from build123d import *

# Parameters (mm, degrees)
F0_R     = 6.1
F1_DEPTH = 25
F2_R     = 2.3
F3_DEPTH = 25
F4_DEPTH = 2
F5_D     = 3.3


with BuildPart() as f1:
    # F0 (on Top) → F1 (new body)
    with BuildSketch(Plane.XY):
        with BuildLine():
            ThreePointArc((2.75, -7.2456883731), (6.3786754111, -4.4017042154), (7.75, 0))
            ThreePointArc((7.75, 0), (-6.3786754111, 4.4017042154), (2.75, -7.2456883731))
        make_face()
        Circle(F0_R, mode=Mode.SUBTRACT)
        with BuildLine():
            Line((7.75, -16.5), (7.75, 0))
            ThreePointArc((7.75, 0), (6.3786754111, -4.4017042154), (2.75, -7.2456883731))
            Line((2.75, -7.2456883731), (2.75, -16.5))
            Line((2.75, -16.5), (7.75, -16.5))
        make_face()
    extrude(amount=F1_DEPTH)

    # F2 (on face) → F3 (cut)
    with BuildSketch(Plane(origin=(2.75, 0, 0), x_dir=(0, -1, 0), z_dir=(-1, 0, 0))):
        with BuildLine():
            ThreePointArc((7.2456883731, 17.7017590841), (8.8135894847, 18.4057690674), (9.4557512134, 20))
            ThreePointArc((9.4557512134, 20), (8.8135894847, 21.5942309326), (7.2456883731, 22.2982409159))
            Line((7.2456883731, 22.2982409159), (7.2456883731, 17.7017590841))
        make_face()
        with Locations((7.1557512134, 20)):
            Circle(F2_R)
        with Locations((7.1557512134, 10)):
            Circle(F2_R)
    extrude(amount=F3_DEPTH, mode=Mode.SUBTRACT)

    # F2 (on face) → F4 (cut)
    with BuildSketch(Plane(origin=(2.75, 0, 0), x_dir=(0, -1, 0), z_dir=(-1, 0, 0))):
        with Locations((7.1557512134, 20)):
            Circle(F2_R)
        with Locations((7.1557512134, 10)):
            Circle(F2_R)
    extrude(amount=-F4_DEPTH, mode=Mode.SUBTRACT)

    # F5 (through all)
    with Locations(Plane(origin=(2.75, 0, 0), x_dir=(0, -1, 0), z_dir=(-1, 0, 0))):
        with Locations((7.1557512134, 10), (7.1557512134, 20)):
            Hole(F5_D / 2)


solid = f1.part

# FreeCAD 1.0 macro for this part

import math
import FreeCAD as App
import Part
import Sketcher

doc = App.newDocument("Part")
body = doc.addObject("PartDesign::Body", "Body")

# Sketch on XY plane
sketch1 = doc.addObject("Sketcher::SketchObject", "Sketch")
body.addObject(sketch1)
sketch1.AttachmentSupport = (doc.XY_Plane, [""])
sketch1.MapMode = "FlatFace"
sketch1.addGeometry(Part.ArcOfCircle(Part.Circle(App.Vector(0, 0, 0), App.Vector(0, 0, 1), 8), math.radians(0), math.radians(291)), False)
sketch1.addGeometry(Part.LineSegment(App.Vector(3, -7, 0), App.Vector(3, -16, 0)), False)
sketch1.addGeometry(Part.LineSegment(App.Vector(3, -16, 0), App.Vector(8, -16, 0)), False)
sketch1.addGeometry(Part.LineSegment(App.Vector(8, -16, 0), App.Vector(8, 0, 0)), False)
sketch1.addGeometry(Part.Circle(App.Vector(0, 0, 0), App.Vector(0, 0, 1), 6), False)
sketch1.addConstraint(Sketcher.Constraint("Coincident", 0, 2, 1, 1))
sketch1.addConstraint(Sketcher.Constraint("Coincident", 1, 2, 2, 1))
sketch1.addConstraint(Sketcher.Constraint("Coincident", 2, 2, 3, 1))
sketch1.addConstraint(Sketcher.Constraint("Tangent", 3, 2, 0, 1))
sketch1.addConstraint(Sketcher.Constraint("Vertical", 1))
sketch1.addConstraint(Sketcher.Constraint("Horizontal", 2))
sketch1.addConstraint(Sketcher.Constraint("Vertical", 3))
sketch1.addConstraint(Sketcher.Constraint("Coincident", 0, 3, -1, 1))
sketch1.addConstraint(Sketcher.Constraint("Coincident", 4, 3, -1, 1))
sketch1.addConstraint(Sketcher.Constraint("Diameter", 4, 12.2))
sketch1.addConstraint(Sketcher.Constraint("DistanceX", 2, 1, 2, 2, 5.0))
sketch1.addConstraint(Sketcher.Constraint("Radius", 0, 7.75))
sketch1.addConstraint(Sketcher.Constraint("DistanceY", 3, 1, 3, 2, 16.5))
pad1 = doc.addObject("PartDesign::Pad", "Pad")
body.addObject(pad1)
pad1.Profile = sketch1
pad1.Length = 25

# Sketch on YZ plane
sketch2 = doc.addObject("Sketcher::SketchObject", "Sketch001")
body.addObject(sketch2)
sketch2.AttachmentSupport = (doc.YZ_Plane, [""])
sketch2.MapMode = "FlatFace"
sketch2.AttachmentOffset = App.Placement(App.Vector(0, 0, 2.75), App.Rotation())
sketch2.addGeometry(Part.ArcOfCircle(Part.Circle(App.Vector(-7.2, 20, 0), App.Vector(0, 0, 1), 2.3), math.radians(180), math.radians(268)), False)
sketch2.addGeometry(Part.ArcOfCircle(Part.Circle(App.Vector(-7.2, 20, 0), App.Vector(0, 0, 1), 2.3), math.radians(92), math.radians(180)), False)
sketch2.addGeometry(Part.ArcOfCircle(Part.Circle(App.Vector(-7.2, 20, 0), App.Vector(0, 0, 1), 2.3), math.radians(-92), math.radians(92)), False)
sketch2.addGeometry(Part.Circle(App.Vector(-7.2, 10, 0), App.Vector(0, 0, 1), 2.3), False)
sketch2.addConstraint(Sketcher.Constraint("Tangent", 0, 1, 1, 2))
sketch2.addConstraint(Sketcher.Constraint("Tangent", 1, 1, 2, 2))
sketch2.addConstraint(Sketcher.Constraint("Tangent", 2, 1, 0, 2))
sketch2.addConstraint(Sketcher.Constraint("Equal", 2, 3))
sketch2.addConstraint(Sketcher.Constraint("Horizontal", 2, 3, 0, 1))
sketch2.addConstraint(Sketcher.Constraint("Vertical", 2, 3, 3, 3))
sketch2.addConstraint(Sketcher.Constraint("Vertical", 1, 1, 2, 1))
sketch2.addConstraint(Sketcher.Constraint("Diameter", 3, 4.6))
sketch2.addConstraint(Sketcher.Constraint("DistanceY", -1, 1, 0, 3, 20.0))
sketch2.addConstraint(Sketcher.Constraint("DistanceY", -1, 1, 3, 3, 10.0))
sketch2.addConstraint(Sketcher.Constraint("DistanceX", 0, 3, -1, 1, 7.155751))
sketch2.addConstraint(Sketcher.Constraint("DistanceX", 1, 1, -1, 1, 7.245688))
pocket1 = doc.addObject("PartDesign::Pocket", "Pocket")
body.addObject(pocket1)
pocket1.Profile = sketch2
pocket1.Length = 25

# Sketch on YZ plane
sketch3 = doc.addObject("Sketcher::SketchObject", "Sketch002")
body.addObject(sketch3)
sketch3.AttachmentSupport = (doc.YZ_Plane, [""])
sketch3.MapMode = "FlatFace"
sketch3.AttachmentOffset = App.Placement(App.Vector(0, 0, 2.75), App.Rotation())
sketch3.addGeometry(Part.Circle(App.Vector(-7.2, 20, 0), App.Vector(0, 0, 1), 2.3), False)
sketch3.addGeometry(Part.Circle(App.Vector(-7.2, 10, 0), App.Vector(0, 0, 1), 2.3), False)
sketch3.addConstraint(Sketcher.Constraint("Equal", 0, 1))
sketch3.addConstraint(Sketcher.Constraint("Vertical", 0, 3, 1, 3))
sketch3.addConstraint(Sketcher.Constraint("Diameter", 0, 4.6))
sketch3.addConstraint(Sketcher.Constraint("DistanceY", -1, 1, 0, 3, 20.0))
sketch3.addConstraint(Sketcher.Constraint("DistanceY", -1, 1, 1, 3, 10.0))
sketch3.addConstraint(Sketcher.Constraint("DistanceX", 0, 3, -1, 1, 7.155751))
pocket2 = doc.addObject("PartDesign::Pocket", "Pocket001")
body.addObject(pocket2)
pocket2.Profile = sketch3
pocket2.Length = 2
pocket2.Reversed = True

# Sketch on YZ plane
sketch4 = doc.addObject("Sketcher::SketchObject", "Sketch003")
body.addObject(sketch4)
sketch4.AttachmentSupport = (doc.YZ_Plane, [""])
sketch4.MapMode = "FlatFace"
sketch4.AttachmentOffset = App.Placement(App.Vector(0, 0, 2.75), App.Rotation())
sketch4.addGeometry(Part.Circle(App.Vector(-7.2, 10, 0), App.Vector(0, 0, 1), 1.6), False)
sketch4.addGeometry(Part.Circle(App.Vector(-7.2, 20, 0), App.Vector(0, 0, 1), 1.6), False)
sketch4.addConstraint(Sketcher.Constraint("Equal", 0, 1))
sketch4.addConstraint(Sketcher.Constraint("Vertical", 0, 3, 1, 3))
sketch4.addConstraint(Sketcher.Constraint("Diameter", 0, 3.3))
sketch4.addConstraint(Sketcher.Constraint("DistanceY", -1, 1, 0, 3, 10.0))
sketch4.addConstraint(Sketcher.Constraint("DistanceY", -1, 1, 1, 3, 20.0))
sketch4.addConstraint(Sketcher.Constraint("DistanceX", 0, 3, -1, 1, 7.155751))
doc.recompute()
hole = doc.addObject("PartDesign::Hole", "Hole")
body.addObject(hole)
hole.Profile = sketch4
hole.ThreadType = "None"
hole.Diameter = 3.3
hole.DepthType = "ThroughAll"
hole.Reversed = True

doc.recompute()
